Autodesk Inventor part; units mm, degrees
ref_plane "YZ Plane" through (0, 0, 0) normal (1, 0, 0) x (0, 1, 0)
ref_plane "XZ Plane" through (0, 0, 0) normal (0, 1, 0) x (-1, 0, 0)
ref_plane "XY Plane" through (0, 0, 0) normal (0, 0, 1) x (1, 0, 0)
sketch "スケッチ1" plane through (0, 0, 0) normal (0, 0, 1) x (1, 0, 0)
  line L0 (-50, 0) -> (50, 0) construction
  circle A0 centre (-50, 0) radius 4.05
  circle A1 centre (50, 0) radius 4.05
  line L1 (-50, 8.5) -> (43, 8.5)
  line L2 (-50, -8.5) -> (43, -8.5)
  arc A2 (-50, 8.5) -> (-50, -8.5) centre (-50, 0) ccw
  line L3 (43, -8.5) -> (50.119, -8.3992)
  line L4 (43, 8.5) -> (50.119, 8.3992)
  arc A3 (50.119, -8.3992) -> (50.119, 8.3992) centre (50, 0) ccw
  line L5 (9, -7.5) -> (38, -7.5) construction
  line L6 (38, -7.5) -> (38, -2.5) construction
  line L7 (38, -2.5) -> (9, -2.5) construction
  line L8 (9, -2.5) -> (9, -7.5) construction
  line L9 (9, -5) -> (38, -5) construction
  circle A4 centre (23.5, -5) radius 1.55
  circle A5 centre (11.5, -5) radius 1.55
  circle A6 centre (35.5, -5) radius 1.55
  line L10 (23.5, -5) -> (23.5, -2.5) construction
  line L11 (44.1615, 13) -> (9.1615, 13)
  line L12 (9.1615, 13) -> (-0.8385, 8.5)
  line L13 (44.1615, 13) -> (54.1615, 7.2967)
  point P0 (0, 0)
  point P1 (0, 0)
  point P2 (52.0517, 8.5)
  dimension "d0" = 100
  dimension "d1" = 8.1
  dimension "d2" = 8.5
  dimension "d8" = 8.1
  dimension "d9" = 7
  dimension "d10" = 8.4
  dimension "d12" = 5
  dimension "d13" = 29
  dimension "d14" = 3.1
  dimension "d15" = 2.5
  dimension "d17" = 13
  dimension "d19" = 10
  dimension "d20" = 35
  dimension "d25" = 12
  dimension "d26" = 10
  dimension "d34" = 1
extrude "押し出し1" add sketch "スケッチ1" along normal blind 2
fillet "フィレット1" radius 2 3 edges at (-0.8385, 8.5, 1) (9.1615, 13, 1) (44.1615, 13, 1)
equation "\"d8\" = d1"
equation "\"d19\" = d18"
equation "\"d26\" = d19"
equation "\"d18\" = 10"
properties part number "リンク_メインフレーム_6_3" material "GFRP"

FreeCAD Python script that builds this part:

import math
import FreeCAD as App
import Part
import Sketcher
Q = App.Units.Quantity


def edges_at(feature, points):
    """Names of the edges that pass closest to the given points."""
    edges = feature.Shape.Edges
    near = lambda p: min(range(len(edges)), key=lambda i: edges[i].distToShape(Part.Vertex(*p))[0])
    return sorted({f"Edge{near(p) + 1}" for p in points})

doc = App.newDocument("Part")
body = doc.addObject("PartDesign::Body", "Body")

# Sketch on XY plane
sketch1 = body.newObject("Sketcher::SketchObject", "Sketch")
sketch1.AttachmentSupport = (doc.getObject("XY_Plane"), [""])
sketch1.MapMode = "FlatFace"
sketch1.addGeometry([
    Part.LineSegment(App.Vector(-0.8, 8.5, 0), App.Vector(-50, 8.5, 0)),  # 0
    Part.ArcOfCircle(Part.Circle(App.Vector(-50, 0, 0), App.Vector(0, 0, 1), 8.5), math.radians(90), math.radians(270)),  # 1
    Part.LineSegment(App.Vector(-50, -8.5, 0), App.Vector(43, -8.5, 0)),  # 2
    Part.LineSegment(App.Vector(43, -8.5, 0), App.Vector(50.1, -8.4, 0)),  # 3
    Part.ArcOfCircle(Part.Circle(App.Vector(50, 0, 0), App.Vector(0, 0, 1), 8.4), math.radians(-89), math.radians(60)),  # 4
    Part.LineSegment(App.Vector(54.2, 7.3, 0), App.Vector(44.2, 13, 0)),  # 5
    Part.LineSegment(App.Vector(44.2, 13, 0), App.Vector(9.2, 13, 0)),  # 6
    Part.LineSegment(App.Vector(9.2, 13, 0), App.Vector(-0.8, 8.5, 0)),  # 7
    Part.Circle(App.Vector(-50, 0, 0), App.Vector(0, 0, 1), 4),  # 8
    Part.Circle(App.Vector(11.5, -5, 0), App.Vector(0, 0, 1), 1.6),  # 9
    Part.Circle(App.Vector(23.5, -5, 0), App.Vector(0, 0, 1), 1.6),  # 10
    Part.Circle(App.Vector(35.5, -5, 0), App.Vector(0, 0, 1), 1.6),  # 11
    Part.Circle(App.Vector(50, 0, 0), App.Vector(0, 0, 1), 4),  # 12
], False)
sketch1.addConstraint([
    Sketcher.Constraint("Tangent", 0, 2, 1, 1),
    Sketcher.Constraint("Tangent", 1, 2, 2, 1),
    Sketcher.Constraint("Coincident", 2, 2, 3, 1),
    Sketcher.Constraint("Tangent", 3, 2, 4, 1),
    Sketcher.Constraint("Tangent", 4, 2, 5, 1),
    Sketcher.Constraint("Coincident", 5, 2, 6, 1),
    Sketcher.Constraint("Coincident", 6, 2, 7, 1),
    Sketcher.Constraint("Coincident", 7, 2, 0, 1),
    Sketcher.Constraint("Horizontal", 0),
    Sketcher.Constraint("Horizontal", 2),
    Sketcher.Constraint("Horizontal", 6),
    Sketcher.Constraint("Coincident", 8, 3, 1, 3),
    Sketcher.Constraint("Coincident", 12, 3, 4, 3),
    Sketcher.Constraint("Equal", 9, 10),
    Sketcher.Constraint("Equal", 10, 11),
    Sketcher.Constraint("Equal", 8, 12),
    Sketcher.Constraint("Symmetric", 1, 3, 4, 3, -1, 1),
    Sketcher.Constraint("PointOnObject", 1, 3, -1),
    Sketcher.Constraint("Horizontal", 9, 3, 10, 3),
    Sketcher.Constraint("Horizontal", 10, 3, 11, 3),
    Sketcher.Constraint("Diameter", 8, Q("8.1 mm")),
    Sketcher.Constraint("Diameter", 9, Q("3.1 mm")),
    Sketcher.Constraint("Radius", 1, Q("8.5 mm")),
    Sketcher.Constraint("Radius", 4, Q("8.4 mm")),
    Sketcher.Constraint("DistanceX", 6, 2, 6, 1, Q("35 mm")),
    Sketcher.Constraint("DistanceY", 9, 3, -1, 1, Q("5 mm")),
    Sketcher.Constraint("DistanceY", -1, 1, 5, 2, Q("13 mm")),
    Sketcher.Constraint("DistanceX", 1, 3, 4, 3, Q("100 mm")),
    Sketcher.Constraint("DistanceX", 9, 3, 10, 3, Q("12 mm")),
    Sketcher.Constraint("DistanceX", 10, 3, 11, 3, Q("12 mm")),
    Sketcher.Constraint("DistanceX", 2, 2, 4, 3, Q("7 mm")),
    Sketcher.Constraint("DistanceX", 5, 2, 4, 2, Q("10 mm")),
    Sketcher.Constraint("DistanceX", 7, 2, 6, 2, Q("10 mm")),
    Sketcher.Constraint("DistanceX", -1, 1, 9, 3, Q("11.5 mm")),
])
pad1 = body.newObject("PartDesign::Pad", "Pad")
pad1.Profile = sketch1
pad1.Length = 2
doc.recompute()

fillet = body.newObject("PartDesign::Fillet", "Fillet")
fillet.Base = (pad1, edges_at(pad1, [(-0.839, 8.5, 1), (9.162, 13, 1), (44.161, 13, 1)]))
fillet.Radius = 2

doc.recompute()
